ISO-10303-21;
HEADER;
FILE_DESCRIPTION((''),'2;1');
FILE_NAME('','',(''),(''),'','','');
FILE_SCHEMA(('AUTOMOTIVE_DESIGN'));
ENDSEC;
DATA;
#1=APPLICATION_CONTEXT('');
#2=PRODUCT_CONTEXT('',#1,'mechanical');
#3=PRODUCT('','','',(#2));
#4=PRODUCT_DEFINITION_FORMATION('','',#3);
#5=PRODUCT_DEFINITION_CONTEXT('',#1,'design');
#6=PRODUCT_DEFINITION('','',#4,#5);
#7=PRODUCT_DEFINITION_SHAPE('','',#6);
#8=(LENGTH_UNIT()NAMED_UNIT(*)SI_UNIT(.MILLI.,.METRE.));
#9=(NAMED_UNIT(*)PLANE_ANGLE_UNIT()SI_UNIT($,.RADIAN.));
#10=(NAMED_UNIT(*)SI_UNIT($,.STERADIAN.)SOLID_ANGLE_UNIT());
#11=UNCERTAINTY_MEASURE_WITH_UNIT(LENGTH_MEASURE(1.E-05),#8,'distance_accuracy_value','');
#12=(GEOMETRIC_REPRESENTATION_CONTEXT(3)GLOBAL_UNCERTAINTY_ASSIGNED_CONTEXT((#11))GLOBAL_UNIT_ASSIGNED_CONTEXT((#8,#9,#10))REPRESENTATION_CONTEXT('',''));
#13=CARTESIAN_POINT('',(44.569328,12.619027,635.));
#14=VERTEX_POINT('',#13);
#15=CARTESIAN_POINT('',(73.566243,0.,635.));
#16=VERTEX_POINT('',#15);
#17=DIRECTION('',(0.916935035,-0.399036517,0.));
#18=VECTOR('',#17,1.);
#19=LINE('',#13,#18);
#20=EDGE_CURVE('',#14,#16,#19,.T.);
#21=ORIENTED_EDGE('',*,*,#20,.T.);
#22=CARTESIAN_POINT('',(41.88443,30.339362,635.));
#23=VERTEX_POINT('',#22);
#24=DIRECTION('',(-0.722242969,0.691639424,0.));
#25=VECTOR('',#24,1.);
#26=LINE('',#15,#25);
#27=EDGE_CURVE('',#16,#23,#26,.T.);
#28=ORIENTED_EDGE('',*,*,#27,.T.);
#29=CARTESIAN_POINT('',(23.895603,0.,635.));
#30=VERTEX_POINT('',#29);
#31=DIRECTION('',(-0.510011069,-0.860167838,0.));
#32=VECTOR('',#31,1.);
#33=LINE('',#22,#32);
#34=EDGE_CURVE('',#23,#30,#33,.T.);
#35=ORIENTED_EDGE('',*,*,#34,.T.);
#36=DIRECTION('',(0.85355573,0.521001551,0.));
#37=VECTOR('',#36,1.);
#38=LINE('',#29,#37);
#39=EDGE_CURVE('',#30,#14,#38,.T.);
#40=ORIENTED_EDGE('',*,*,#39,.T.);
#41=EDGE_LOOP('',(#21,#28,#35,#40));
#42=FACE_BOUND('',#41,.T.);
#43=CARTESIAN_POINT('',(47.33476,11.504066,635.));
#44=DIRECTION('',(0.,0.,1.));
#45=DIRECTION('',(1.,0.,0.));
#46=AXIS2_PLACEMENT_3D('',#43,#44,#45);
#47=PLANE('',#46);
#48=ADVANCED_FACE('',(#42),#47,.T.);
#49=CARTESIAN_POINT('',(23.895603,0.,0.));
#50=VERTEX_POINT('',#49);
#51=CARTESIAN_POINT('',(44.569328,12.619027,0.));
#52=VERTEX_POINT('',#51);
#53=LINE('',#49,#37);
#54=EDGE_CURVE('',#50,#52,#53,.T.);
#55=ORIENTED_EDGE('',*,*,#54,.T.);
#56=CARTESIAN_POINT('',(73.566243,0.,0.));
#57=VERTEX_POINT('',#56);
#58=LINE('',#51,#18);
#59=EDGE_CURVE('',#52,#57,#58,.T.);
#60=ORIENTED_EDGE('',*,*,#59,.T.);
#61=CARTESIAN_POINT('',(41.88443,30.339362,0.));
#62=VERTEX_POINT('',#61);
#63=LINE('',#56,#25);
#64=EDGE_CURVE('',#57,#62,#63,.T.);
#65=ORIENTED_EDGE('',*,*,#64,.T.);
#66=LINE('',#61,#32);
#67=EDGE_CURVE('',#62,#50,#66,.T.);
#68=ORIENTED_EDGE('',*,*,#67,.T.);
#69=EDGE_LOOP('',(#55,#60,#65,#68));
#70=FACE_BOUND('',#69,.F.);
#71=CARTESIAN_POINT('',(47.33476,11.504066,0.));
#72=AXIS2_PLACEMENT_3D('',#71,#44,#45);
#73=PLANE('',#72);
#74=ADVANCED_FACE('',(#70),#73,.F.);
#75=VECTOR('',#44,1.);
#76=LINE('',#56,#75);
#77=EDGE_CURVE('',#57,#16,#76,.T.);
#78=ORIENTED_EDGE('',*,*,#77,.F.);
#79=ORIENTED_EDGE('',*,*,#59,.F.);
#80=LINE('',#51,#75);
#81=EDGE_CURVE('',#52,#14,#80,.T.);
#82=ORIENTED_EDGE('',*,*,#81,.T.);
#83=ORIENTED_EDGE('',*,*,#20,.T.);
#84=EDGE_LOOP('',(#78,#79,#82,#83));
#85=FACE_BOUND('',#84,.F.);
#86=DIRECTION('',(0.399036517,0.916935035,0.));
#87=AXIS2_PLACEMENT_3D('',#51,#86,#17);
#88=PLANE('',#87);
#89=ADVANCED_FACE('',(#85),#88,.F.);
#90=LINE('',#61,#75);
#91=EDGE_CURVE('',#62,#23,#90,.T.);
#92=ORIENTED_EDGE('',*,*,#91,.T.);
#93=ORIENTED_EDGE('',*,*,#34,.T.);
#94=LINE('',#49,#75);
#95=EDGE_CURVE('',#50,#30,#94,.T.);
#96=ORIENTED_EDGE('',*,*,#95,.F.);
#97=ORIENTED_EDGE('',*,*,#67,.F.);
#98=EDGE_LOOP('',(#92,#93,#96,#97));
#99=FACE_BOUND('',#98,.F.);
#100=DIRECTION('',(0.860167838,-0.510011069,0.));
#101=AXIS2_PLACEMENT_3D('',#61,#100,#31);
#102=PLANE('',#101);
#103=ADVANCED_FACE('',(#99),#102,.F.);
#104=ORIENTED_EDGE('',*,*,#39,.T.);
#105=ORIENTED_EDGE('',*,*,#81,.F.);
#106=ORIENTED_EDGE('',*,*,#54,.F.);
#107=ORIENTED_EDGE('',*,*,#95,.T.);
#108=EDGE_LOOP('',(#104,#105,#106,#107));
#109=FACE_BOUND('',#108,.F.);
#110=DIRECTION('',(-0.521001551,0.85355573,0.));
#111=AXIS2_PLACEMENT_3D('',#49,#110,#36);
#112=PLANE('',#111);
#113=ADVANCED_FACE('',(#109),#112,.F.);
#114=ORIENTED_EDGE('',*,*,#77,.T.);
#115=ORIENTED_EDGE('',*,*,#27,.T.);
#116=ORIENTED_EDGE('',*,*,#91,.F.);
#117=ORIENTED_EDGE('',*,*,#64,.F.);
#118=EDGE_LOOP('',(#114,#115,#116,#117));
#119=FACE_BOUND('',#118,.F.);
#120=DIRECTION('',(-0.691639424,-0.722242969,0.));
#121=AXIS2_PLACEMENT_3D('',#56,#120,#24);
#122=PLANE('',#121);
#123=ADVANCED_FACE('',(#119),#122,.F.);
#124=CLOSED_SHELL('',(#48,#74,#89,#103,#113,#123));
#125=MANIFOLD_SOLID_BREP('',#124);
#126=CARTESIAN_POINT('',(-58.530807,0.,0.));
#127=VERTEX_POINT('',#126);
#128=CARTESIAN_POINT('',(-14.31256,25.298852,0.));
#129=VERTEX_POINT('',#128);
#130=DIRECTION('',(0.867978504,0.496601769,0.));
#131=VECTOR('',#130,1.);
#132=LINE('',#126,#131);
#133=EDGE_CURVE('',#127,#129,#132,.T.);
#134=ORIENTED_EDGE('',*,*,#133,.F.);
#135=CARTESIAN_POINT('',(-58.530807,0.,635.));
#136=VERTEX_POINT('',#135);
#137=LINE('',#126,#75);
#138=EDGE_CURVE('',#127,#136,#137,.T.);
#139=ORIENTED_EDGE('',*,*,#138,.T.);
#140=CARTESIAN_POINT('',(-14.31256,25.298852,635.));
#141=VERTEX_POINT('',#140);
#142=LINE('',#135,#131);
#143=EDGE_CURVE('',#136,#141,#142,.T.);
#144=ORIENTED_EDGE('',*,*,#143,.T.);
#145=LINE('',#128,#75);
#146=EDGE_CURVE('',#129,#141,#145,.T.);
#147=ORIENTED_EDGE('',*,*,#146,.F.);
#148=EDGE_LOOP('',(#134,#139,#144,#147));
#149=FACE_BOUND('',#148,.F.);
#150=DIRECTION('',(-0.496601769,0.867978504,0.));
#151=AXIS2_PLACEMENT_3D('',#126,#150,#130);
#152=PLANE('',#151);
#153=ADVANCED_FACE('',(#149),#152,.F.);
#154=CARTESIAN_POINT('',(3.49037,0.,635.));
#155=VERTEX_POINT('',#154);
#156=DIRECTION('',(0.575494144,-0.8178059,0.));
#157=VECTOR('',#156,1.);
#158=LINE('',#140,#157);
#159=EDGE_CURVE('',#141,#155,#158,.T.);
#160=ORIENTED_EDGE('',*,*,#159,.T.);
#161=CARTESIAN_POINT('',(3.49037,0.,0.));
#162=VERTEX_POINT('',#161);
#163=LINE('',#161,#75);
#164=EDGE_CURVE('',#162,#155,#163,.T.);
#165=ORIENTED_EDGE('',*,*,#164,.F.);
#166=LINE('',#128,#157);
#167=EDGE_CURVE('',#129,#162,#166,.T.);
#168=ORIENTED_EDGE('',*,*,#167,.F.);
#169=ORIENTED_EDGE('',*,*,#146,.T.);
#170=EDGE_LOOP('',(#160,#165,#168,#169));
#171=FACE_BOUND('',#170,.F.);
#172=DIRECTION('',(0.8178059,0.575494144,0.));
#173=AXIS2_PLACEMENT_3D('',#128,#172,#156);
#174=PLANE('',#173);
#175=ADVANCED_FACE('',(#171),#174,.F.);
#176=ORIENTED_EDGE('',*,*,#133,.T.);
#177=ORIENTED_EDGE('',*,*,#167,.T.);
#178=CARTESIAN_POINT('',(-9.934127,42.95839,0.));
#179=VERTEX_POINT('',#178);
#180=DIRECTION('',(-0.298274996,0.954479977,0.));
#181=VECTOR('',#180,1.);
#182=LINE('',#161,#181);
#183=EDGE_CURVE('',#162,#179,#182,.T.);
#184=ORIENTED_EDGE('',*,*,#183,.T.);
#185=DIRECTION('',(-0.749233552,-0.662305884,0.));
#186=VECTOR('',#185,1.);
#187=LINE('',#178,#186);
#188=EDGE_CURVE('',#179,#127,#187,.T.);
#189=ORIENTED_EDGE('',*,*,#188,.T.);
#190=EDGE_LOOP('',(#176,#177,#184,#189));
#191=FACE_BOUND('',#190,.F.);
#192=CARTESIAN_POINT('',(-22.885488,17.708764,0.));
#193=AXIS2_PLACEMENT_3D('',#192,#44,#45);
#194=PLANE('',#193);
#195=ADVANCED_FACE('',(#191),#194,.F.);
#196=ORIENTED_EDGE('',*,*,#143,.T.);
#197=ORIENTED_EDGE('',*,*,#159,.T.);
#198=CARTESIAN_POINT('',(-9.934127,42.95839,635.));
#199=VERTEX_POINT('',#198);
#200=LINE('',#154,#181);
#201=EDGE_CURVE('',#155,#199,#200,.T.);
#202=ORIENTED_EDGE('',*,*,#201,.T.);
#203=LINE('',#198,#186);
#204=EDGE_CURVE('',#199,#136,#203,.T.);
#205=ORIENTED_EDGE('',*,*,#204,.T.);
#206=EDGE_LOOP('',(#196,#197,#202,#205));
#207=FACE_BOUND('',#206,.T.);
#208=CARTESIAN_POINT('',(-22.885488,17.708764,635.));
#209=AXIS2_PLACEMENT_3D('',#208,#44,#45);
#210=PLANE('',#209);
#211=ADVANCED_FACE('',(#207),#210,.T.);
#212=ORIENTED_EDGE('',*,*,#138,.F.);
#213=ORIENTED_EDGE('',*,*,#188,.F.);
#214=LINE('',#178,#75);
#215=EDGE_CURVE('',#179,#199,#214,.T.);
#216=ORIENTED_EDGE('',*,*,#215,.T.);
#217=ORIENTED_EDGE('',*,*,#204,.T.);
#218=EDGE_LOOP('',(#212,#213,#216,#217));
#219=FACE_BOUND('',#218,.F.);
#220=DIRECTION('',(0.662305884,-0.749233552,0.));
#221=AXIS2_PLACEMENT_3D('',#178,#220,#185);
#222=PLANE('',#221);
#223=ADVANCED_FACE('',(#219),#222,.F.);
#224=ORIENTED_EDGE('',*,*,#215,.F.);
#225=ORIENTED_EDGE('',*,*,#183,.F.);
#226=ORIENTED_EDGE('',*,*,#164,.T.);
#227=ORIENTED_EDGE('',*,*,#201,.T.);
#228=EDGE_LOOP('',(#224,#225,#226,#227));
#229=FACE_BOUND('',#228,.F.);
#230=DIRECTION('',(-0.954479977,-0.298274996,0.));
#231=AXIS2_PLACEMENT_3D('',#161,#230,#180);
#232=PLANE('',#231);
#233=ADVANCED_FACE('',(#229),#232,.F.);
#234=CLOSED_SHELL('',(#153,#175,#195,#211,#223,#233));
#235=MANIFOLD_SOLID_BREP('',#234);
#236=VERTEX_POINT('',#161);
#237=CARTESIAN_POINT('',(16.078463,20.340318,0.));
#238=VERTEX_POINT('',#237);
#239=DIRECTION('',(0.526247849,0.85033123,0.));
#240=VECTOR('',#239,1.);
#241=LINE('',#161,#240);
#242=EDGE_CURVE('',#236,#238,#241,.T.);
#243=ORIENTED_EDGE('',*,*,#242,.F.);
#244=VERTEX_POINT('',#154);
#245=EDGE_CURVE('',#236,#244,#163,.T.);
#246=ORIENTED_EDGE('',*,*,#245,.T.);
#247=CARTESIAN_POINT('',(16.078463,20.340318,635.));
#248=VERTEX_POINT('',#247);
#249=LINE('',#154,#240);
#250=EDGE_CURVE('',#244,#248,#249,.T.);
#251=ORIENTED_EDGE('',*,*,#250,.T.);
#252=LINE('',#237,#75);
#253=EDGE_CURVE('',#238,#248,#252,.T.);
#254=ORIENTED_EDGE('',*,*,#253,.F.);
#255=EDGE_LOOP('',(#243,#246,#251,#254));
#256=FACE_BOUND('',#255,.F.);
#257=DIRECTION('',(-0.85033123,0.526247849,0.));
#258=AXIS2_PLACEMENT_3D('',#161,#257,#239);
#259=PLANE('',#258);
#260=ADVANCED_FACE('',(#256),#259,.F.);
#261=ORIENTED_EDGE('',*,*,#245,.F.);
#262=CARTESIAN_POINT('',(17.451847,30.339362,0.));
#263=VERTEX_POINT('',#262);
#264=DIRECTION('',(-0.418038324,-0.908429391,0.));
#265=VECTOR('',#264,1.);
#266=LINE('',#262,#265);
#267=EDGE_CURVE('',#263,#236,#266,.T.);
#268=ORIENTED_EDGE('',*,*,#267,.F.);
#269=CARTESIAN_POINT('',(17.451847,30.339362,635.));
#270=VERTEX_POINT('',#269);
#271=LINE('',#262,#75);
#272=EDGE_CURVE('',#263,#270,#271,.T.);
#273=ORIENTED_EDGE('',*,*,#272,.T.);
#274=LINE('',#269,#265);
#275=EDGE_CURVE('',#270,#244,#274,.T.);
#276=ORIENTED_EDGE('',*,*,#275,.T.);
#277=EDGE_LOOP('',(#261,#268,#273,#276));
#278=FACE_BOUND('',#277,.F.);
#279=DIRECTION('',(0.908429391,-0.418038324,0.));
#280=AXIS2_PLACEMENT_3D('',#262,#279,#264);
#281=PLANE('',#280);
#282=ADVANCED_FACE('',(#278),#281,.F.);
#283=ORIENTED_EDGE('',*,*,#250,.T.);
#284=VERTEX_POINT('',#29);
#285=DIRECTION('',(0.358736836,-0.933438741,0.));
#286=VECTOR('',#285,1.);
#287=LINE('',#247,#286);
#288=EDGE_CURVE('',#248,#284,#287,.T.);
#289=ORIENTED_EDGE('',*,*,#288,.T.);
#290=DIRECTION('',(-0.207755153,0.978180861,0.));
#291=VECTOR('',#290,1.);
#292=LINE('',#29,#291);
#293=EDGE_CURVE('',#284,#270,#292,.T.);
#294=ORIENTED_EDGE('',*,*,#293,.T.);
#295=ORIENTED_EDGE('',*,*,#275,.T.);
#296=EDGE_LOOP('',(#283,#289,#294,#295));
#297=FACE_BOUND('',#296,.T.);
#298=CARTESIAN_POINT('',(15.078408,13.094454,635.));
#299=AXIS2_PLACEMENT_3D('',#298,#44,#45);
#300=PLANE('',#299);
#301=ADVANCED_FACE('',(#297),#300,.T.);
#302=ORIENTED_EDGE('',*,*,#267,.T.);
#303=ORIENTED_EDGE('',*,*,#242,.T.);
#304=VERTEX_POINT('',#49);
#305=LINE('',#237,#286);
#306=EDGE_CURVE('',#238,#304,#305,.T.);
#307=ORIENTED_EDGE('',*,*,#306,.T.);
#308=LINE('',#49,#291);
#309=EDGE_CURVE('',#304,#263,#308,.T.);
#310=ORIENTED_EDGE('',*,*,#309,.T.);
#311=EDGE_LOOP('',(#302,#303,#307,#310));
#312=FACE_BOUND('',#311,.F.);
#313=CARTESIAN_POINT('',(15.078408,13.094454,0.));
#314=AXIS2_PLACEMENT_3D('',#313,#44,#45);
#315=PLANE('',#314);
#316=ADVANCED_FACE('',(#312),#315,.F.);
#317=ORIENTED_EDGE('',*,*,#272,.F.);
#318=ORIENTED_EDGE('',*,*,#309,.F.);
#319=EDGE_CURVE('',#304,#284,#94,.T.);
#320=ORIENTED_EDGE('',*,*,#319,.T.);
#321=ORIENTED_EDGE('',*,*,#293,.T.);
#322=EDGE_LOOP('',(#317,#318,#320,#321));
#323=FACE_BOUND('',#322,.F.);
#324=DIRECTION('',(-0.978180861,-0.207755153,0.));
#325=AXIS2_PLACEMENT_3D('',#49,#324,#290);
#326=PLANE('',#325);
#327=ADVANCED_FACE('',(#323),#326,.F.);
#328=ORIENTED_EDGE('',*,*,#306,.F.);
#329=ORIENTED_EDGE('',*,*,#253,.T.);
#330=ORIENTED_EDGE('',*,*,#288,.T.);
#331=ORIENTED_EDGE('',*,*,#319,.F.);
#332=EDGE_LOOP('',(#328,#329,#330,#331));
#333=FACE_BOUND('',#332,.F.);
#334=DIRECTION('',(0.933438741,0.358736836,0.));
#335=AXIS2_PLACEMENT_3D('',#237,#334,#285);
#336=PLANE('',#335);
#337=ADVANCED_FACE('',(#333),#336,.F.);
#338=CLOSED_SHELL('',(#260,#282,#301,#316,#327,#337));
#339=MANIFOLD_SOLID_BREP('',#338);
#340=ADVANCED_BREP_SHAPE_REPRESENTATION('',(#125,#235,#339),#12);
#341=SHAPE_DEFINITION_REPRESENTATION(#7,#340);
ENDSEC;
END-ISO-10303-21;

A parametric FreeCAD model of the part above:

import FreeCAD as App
import Part
import Sketcher
from FreeCAD import Vector
Q = App.Units.Quantity


def add_polygon(sketch, points):
    """Adds a closed chain of lines whose ends are joined by coincident constraints."""
    first, n = sketch.GeometryCount, len(points)
    for a, b in zip(points, points[1:] + points[:1]):
        sketch.addGeometry(Part.LineSegment(App.Vector(*a, 0), App.Vector(*b, 0)), False)
    for i in range(n):
        sketch.addConstraint(Sketcher.Constraint("Coincident", first + i, 2, first + (i + 1) % n, 1))

doc = App.newDocument("Part")
body = doc.addObject("PartDesign::Body", "Body")
body.AllowCompound = True

sketch1 = doc.addObject("Sketcher::SketchObject", "Sketch")
body.addObject(sketch1)
sketch1.AttachmentSupport = (doc.XY_Plane, [""])
sketch1.MapMode = "FlatFace"
add_polygon(sketch1, [(-10, 43), (-59, 0), (-14, 25), (3, 0)])
add_polygon(sketch1, [(17, 30), (3, 0), (16, 20), (24, 0)])
add_polygon(sketch1, [(42, 30), (24, 0), (45, 13), (74, 0)])
sketch1.addConstraint([
    Sketcher.Constraint("Coincident", 4, 2, 2, 2),
    Sketcher.Constraint("Coincident", 8, 2, 6, 2),
    Sketcher.Constraint("PointOnObject", 0, 2, -1),
    Sketcher.Constraint("PointOnObject", 2, 2, -1),
    Sketcher.Constraint("PointOnObject", 6, 2, -1),
    Sketcher.Constraint("PointOnObject", 10, 2, -1),
    Sketcher.Constraint("Horizontal", 7, 2, 11, 2),
    Sketcher.Constraint("DistanceY", -1, 1, 5, 2, Q("0.8007999 in")),
    Sketcher.Constraint("Distance", 4, Q("33.397601 mm")),
    Sketcher.Constraint("Distance", 9, Q("24.220709 mm")),
    Sketcher.Constraint("Distance", 10, Q("31.62374 mm")),
    Sketcher.Constraint("DistanceX", 1, 2, -1, 1, Q("14.31256 mm")),
    Sketcher.Constraint("DistanceY", -1, 1, 1, 2, Q("25.298852 mm")),
    Sketcher.Constraint("DistanceX", -1, 1, 2, 2, Q("3.49037 mm")),
    Sketcher.Constraint("DistanceY", -1, 1, 3, 2, Q("42.95839 mm")),
    Sketcher.Constraint("DistanceX", -1, 1, 11, 2, Q("41.88443 mm")),
    Sketcher.Constraint("DistanceX", 0, 2, 3, 2, Q("48.59668 mm")),
    Sketcher.Constraint("DistanceX", 3, 2, 5, 2, Q("26.01259 mm")),
    Sketcher.Constraint("DistanceX", 5, 2, 6, 2, Q("7.81714 mm")),
    Sketcher.Constraint("DistanceY", 1, 2, 7, 2, Q("5.04051 mm")),
    Sketcher.Constraint("DistanceY", 9, 2, 5, 2, Q("7.721291 mm")),
    Sketcher.Constraint("DistanceX", 7, 2, 9, 2, Q("27.117481 mm")),
])
pad1 = doc.addObject("PartDesign::Pad", "Pad")
body.addObject(pad1)
pad1.Profile = sketch1
pad1.Length = Q("25 in")

doc.recompute()
